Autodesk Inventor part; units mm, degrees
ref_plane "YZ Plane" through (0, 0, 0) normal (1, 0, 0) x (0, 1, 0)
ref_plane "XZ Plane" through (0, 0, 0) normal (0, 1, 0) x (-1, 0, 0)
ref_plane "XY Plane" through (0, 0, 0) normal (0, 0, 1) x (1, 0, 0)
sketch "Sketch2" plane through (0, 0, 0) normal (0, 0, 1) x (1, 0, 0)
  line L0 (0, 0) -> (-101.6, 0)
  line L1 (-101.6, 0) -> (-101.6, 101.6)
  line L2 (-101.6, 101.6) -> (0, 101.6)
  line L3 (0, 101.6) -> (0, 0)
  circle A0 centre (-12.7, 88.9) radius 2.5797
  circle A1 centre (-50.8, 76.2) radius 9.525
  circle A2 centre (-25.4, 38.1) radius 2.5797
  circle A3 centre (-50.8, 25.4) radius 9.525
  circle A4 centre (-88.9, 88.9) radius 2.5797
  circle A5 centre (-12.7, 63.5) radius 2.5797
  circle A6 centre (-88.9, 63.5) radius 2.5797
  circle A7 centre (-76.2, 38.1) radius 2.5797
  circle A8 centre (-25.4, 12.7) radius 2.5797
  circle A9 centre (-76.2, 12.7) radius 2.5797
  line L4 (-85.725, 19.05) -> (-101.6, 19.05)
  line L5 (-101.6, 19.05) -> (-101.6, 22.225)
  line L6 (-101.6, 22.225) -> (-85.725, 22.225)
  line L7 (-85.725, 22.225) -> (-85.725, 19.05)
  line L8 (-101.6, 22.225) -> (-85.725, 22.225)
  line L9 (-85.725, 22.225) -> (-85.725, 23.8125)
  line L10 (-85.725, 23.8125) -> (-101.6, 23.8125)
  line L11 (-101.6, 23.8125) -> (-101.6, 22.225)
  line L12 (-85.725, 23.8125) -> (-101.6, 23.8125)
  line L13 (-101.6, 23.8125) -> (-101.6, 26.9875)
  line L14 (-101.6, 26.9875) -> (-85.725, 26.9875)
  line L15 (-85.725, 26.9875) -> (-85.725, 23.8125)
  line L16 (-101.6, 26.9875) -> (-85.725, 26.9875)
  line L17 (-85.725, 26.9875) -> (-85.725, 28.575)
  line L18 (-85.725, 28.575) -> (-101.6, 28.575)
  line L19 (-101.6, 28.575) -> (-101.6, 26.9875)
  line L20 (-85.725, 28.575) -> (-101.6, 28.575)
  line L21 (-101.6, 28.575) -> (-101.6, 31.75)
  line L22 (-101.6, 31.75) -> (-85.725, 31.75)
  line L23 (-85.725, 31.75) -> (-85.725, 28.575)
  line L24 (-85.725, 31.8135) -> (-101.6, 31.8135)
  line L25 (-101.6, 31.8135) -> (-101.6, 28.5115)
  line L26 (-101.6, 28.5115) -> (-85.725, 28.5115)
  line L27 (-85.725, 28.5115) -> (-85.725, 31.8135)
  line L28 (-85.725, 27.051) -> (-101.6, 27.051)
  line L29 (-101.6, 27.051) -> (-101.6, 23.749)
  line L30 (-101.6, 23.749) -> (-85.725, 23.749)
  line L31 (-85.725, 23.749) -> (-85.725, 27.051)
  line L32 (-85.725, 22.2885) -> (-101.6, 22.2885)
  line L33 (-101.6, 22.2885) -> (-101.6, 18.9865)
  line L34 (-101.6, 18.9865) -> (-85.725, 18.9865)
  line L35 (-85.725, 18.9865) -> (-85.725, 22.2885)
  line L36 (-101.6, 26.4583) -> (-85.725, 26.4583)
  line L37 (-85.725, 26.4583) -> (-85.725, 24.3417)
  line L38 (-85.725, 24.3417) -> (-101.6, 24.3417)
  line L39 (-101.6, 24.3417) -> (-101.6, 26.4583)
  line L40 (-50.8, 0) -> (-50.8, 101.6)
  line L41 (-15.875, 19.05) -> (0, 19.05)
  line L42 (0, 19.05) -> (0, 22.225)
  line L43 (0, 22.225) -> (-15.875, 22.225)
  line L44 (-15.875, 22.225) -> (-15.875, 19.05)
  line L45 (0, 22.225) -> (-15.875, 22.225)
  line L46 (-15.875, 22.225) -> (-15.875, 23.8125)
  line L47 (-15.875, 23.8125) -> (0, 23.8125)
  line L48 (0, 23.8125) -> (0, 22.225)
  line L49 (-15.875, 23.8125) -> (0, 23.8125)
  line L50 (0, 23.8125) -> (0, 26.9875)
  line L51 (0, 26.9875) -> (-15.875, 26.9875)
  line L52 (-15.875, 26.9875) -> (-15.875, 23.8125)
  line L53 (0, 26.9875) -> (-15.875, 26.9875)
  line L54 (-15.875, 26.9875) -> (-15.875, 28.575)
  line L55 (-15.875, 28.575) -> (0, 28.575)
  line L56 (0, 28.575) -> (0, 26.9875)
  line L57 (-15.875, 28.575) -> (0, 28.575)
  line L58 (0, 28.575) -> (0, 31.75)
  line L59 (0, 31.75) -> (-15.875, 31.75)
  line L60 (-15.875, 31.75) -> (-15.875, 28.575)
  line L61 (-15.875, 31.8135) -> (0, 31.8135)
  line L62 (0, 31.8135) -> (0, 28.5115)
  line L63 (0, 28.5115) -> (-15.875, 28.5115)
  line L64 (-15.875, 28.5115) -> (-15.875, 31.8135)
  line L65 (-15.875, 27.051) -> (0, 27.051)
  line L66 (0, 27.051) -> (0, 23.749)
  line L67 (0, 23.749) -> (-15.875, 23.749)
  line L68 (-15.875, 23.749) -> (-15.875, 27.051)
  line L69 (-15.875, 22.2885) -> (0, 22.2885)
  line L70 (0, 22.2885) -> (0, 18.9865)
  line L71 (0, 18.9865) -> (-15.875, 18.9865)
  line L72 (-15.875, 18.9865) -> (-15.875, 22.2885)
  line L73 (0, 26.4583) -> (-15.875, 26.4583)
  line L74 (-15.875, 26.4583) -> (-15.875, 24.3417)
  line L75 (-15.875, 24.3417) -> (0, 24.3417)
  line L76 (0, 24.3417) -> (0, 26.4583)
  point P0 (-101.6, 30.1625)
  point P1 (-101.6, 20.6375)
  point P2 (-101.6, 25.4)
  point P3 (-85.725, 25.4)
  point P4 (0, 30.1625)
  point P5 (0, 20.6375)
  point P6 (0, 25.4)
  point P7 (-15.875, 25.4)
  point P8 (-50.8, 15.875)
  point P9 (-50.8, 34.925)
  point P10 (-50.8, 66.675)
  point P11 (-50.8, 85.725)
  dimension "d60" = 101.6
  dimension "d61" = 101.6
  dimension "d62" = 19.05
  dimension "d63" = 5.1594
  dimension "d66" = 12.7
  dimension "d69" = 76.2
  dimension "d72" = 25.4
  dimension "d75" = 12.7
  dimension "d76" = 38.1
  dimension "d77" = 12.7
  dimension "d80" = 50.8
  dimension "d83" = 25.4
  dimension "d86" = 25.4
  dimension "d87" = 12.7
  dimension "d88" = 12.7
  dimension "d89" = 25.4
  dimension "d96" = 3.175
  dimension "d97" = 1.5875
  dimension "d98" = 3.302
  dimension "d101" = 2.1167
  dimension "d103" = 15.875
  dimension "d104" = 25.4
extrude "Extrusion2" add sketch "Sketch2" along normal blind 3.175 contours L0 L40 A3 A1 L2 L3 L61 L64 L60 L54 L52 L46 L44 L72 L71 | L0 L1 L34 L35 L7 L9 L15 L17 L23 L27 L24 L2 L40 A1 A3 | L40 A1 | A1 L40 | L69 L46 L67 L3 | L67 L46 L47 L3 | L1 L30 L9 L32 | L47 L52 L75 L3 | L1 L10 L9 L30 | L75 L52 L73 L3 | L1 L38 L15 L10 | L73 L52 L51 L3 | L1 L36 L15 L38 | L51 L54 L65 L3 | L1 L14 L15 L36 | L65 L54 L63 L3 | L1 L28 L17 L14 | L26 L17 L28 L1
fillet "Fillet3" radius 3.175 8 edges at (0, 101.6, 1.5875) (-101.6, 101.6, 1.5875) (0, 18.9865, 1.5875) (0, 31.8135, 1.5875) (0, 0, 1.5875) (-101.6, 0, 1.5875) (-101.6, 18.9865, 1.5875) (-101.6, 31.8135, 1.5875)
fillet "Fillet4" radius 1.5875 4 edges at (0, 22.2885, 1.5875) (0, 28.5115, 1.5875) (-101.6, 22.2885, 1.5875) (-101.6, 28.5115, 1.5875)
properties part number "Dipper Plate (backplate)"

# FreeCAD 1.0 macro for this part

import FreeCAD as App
import Part
import Sketcher
Q = App.Units.Quantity


def edges_at(feature, points):
    """Names of the edges that pass closest to the given points."""
    edges = feature.Shape.Edges
    near = lambda p: min(range(len(edges)), key=lambda i: edges[i].distToShape(Part.Vertex(*p))[0])
    return sorted({f"Edge{near(p) + 1}" for p in points})

doc = App.newDocument("Part")
body = doc.addObject("PartDesign::Body", "Body")

sketch1 = body.newObject("Sketcher::SketchObject", "Sketch")
sketch1.AttachmentSupport = (doc.getObject("XY_Plane"), [""])
sketch1.MapMode = "FlatFace"
sketch1.addGeometry(Part.LineSegment(App.Vector(0, 0, 0), App.Vector(0, 19, 0)), False)
sketch1.addGeometry(Part.LineSegment(App.Vector(0, 19, 0), App.Vector(-15.9, 19, 0)), False)
sketch1.addGeometry(Part.LineSegment(App.Vector(-15.9, 19, 0), App.Vector(-15.9, 22.3, 0)), False)
sketch1.addGeometry(Part.LineSegment(App.Vector(-15.9, 22.3, 0), App.Vector(0, 22.3, 0)), False)
sketch1.addGeometry(Part.LineSegment(App.Vector(0, 22.3, 0), App.Vector(0, 28.5, 0)), False)
sketch1.addGeometry(Part.LineSegment(App.Vector(0, 28.5, 0), App.Vector(-15.9, 28.5, 0)), False)
sketch1.addGeometry(Part.LineSegment(App.Vector(-15.9, 28.5, 0), App.Vector(-15.9, 31.8, 0)), False)
sketch1.addGeometry(Part.LineSegment(App.Vector(-15.9, 31.8, 0), App.Vector(0, 31.8, 0)), False)
sketch1.addGeometry(Part.LineSegment(App.Vector(0, 31.8, 0), App.Vector(0, 101.6, 0)), False)
sketch1.addGeometry(Part.LineSegment(App.Vector(0, 101.6, 0), App.Vector(-101.6, 101.6, 0)), False)
sketch1.addGeometry(Part.LineSegment(App.Vector(-101.6, 101.6, 0), App.Vector(-101.6, 31.8, 0)), False)
sketch1.addGeometry(Part.LineSegment(App.Vector(-101.6, 31.8, 0), App.Vector(-85.7, 31.8, 0)), False)
sketch1.addGeometry(Part.LineSegment(App.Vector(-85.7, 31.8, 0), App.Vector(-85.7, 28.5, 0)), False)
sketch1.addGeometry(Part.LineSegment(App.Vector(-85.7, 28.5, 0), App.Vector(-101.6, 28.5, 0)), False)
sketch1.addGeometry(Part.LineSegment(App.Vector(-101.6, 28.5, 0), App.Vector(-101.6, 22.3, 0)), False)
sketch1.addGeometry(Part.LineSegment(App.Vector(-101.6, 22.3, 0), App.Vector(-85.7, 22.3, 0)), False)
sketch1.addGeometry(Part.LineSegment(App.Vector(-85.7, 22.3, 0), App.Vector(-85.7, 19, 0)), False)
sketch1.addGeometry(Part.LineSegment(App.Vector(-85.7, 19, 0), App.Vector(-101.6, 19, 0)), False)
sketch1.addGeometry(Part.LineSegment(App.Vector(-101.6, 19, 0), App.Vector(-101.6, 0, 0)), False)
sketch1.addGeometry(Part.LineSegment(App.Vector(-101.6, 0, 0), App.Vector(0, 0, 0)), False)
sketch1.addGeometry(Part.Circle(App.Vector(-50.8, 25.4, 0), App.Vector(0, 0, 1), 9.5), False)
sketch1.addGeometry(Part.Circle(App.Vector(-25.4, 12.7, 0), App.Vector(0, 0, 1), 2.6), False)
sketch1.addGeometry(Part.Circle(App.Vector(-25.4, 38.1, 0), App.Vector(0, 0, 1), 2.6), False)
sketch1.addGeometry(Part.Circle(App.Vector(-12.7, 63.5, 0), App.Vector(0, 0, 1), 2.6), False)
sketch1.addGeometry(Part.Circle(App.Vector(-12.7, 88.9, 0), App.Vector(0, 0, 1), 2.6), False)
sketch1.addGeometry(Part.Circle(App.Vector(-76.2, 38.1, 0), App.Vector(0, 0, 1), 2.6), False)
sketch1.addGeometry(Part.Circle(App.Vector(-88.9, 63.5, 0), App.Vector(0, 0, 1), 2.6), False)
sketch1.addGeometry(Part.Circle(App.Vector(-88.9, 88.9, 0), App.Vector(0, 0, 1), 2.6), False)
sketch1.addGeometry(Part.Circle(App.Vector(-76.2, 12.7, 0), App.Vector(0, 0, 1), 2.6), False)
sketch1.addConstraint(Sketcher.Constraint("Coincident", 0, 2, 1, 1))
sketch1.addConstraint(Sketcher.Constraint("Coincident", 1, 2, 2, 1))
sketch1.addConstraint(Sketcher.Constraint("Coincident", 2, 2, 3, 1))
sketch1.addConstraint(Sketcher.Constraint("Coincident", 3, 2, 4, 1))
sketch1.addConstraint(Sketcher.Constraint("Coincident", 4, 2, 5, 1))
sketch1.addConstraint(Sketcher.Constraint("Coincident", 5, 2, 6, 1))
sketch1.addConstraint(Sketcher.Constraint("Coincident", 6, 2, 7, 1))
sketch1.addConstraint(Sketcher.Constraint("Coincident", 7, 2, 8, 1))
sketch1.addConstraint(Sketcher.Constraint("Coincident", 8, 2, 9, 1))
sketch1.addConstraint(Sketcher.Constraint("Coincident", 9, 2, 10, 1))
sketch1.addConstraint(Sketcher.Constraint("Coincident", 10, 2, 11, 1))
sketch1.addConstraint(Sketcher.Constraint("Coincident", 11, 2, 12, 1))
sketch1.addConstraint(Sketcher.Constraint("Coincident", 12, 2, 13, 1))
sketch1.addConstraint(Sketcher.Constraint("Coincident", 13, 2, 14, 1))
sketch1.addConstraint(Sketcher.Constraint("Coincident", 14, 2, 15, 1))
sketch1.addConstraint(Sketcher.Constraint("Coincident", 15, 2, 16, 1))
sketch1.addConstraint(Sketcher.Constraint("Coincident", 16, 2, 17, 1))
sketch1.addConstraint(Sketcher.Constraint("Coincident", 17, 2, 18, 1))
sketch1.addConstraint(Sketcher.Constraint("Coincident", 18, 2, 19, 1))
sketch1.addConstraint(Sketcher.Constraint("Coincident", 19, 2, 0, 1))
sketch1.addConstraint(Sketcher.Constraint("Vertical", 0))
sketch1.addConstraint(Sketcher.Constraint("Horizontal", 1))
sketch1.addConstraint(Sketcher.Constraint("Vertical", 2))
sketch1.addConstraint(Sketcher.Constraint("Horizontal", 3))
sketch1.addConstraint(Sketcher.Constraint("Vertical", 4))
sketch1.addConstraint(Sketcher.Constraint("Horizontal", 5))
sketch1.addConstraint(Sketcher.Constraint("Vertical", 6))
sketch1.addConstraint(Sketcher.Constraint("Horizontal", 7))
sketch1.addConstraint(Sketcher.Constraint("Vertical", 8))
sketch1.addConstraint(Sketcher.Constraint("Horizontal", 9))
sketch1.addConstraint(Sketcher.Constraint("Vertical", 10))
sketch1.addConstraint(Sketcher.Constraint("Horizontal", 11))
sketch1.addConstraint(Sketcher.Constraint("Vertical", 12))
sketch1.addConstraint(Sketcher.Constraint("Horizontal", 13))
sketch1.addConstraint(Sketcher.Constraint("Vertical", 14))
sketch1.addConstraint(Sketcher.Constraint("Horizontal", 15))
sketch1.addConstraint(Sketcher.Constraint("Vertical", 16))
sketch1.addConstraint(Sketcher.Constraint("Horizontal", 17))
sketch1.addConstraint(Sketcher.Constraint("Vertical", 18))
sketch1.addConstraint(Sketcher.Constraint("Horizontal", 19))
sketch1.addConstraint(Sketcher.Constraint("Coincident", 19, 2, -1, 1))
sketch1.addConstraint(Sketcher.Constraint("Equal", 21, 22))
sketch1.addConstraint(Sketcher.Constraint("Equal", 22, 23))
sketch1.addConstraint(Sketcher.Constraint("Equal", 23, 24))
sketch1.addConstraint(Sketcher.Constraint("Equal", 24, 25))
sketch1.addConstraint(Sketcher.Constraint("Equal", 25, 26))
sketch1.addConstraint(Sketcher.Constraint("Equal", 26, 27))
sketch1.addConstraint(Sketcher.Constraint("Equal", 27, 28))
sketch1.addConstraint(Sketcher.Constraint("PointOnObject", 3, 2, -2))
sketch1.addConstraint(Sketcher.Constraint("PointOnObject", 7, 2, -2))
sketch1.addConstraint(Sketcher.Constraint("Horizontal", 22, 3, 25, 3))
sketch1.addConstraint(Sketcher.Constraint("Horizontal", 23, 3, 26, 3))
sketch1.addConstraint(Sketcher.Constraint("Horizontal", 24, 3, 27, 3))
sketch1.addConstraint(Sketcher.Constraint("Horizontal", 21, 3, 28, 3))
sketch1.addConstraint(Sketcher.Constraint("Horizontal", 7, 2, 10, 2))
sketch1.addConstraint(Sketcher.Constraint("Horizontal", 5, 2, 12, 2))
sketch1.addConstraint(Sketcher.Constraint("Horizontal", 3, 2, 14, 2))
sketch1.addConstraint(Sketcher.Constraint("Horizontal", 1, 2, 16, 2))
sketch1.addConstraint(Sketcher.Constraint("Vertical", 21, 3, 22, 3))
sketch1.addConstraint(Sketcher.Constraint("Vertical", 23, 3, 24, 3))
sketch1.addConstraint(Sketcher.Constraint("Vertical", 26, 3, 27, 3))
sketch1.addConstraint(Sketcher.Constraint("Vertical", 25, 3, 28, 3))
sketch1.addConstraint(Sketcher.Constraint("Vertical", 2, 2, 5, 2))
sketch1.addConstraint(Sketcher.Constraint("Vertical", 10, 2, 13, 2))
sketch1.addConstraint(Sketcher.Constraint("Vertical", 12, 2, 15, 2))
sketch1.addConstraint(Sketcher.Constraint("Vertical", 14, 2, 17, 2))
sketch1.addConstraint(Sketcher.Constraint("Equal", 7, 11))
sketch1.addConstraint(Sketcher.Constraint("Equal", 2, 6))
sketch1.addConstraint(Sketcher.Constraint("Diameter", 20, Q("0.75 in")))
sketch1.addConstraint(Sketcher.Constraint("DistanceX", 9, 2, 9, 1, Q("4 in")))
sketch1.addConstraint(Sketcher.Constraint("Diameter", 21, Q("0.203126 in")))
sketch1.addConstraint(Sketcher.Constraint("DistanceX", 20, 3, -1, 1, Q("2 in")))
sketch1.addConstraint(Sketcher.Constraint("DistanceY", -1, 1, 20, 3, Q("1 in")))
sketch1.addConstraint(Sketcher.Constraint("DistanceX", 21, 3, -1, 1, Q("1 in")))
sketch1.addConstraint(Sketcher.Constraint("DistanceX", 25, 3, -1, 1, Q("3 in")))
sketch1.addConstraint(Sketcher.Constraint("DistanceY", -1, 1, 8, 2, Q("4 in")))
sketch1.addConstraint(Sketcher.Constraint("DistanceY", 21, 3, 22, 3, Q("1 in")))
sketch1.addConstraint(Sketcher.Constraint("DistanceY", 22, 3, 23, 3, Q("1 in")))
sketch1.addConstraint(Sketcher.Constraint("DistanceY", 23, 3, 24, 3, Q("1 in")))
sketch1.addConstraint(Sketcher.Constraint("DistanceX", 26, 3, 23, 3, Q("3 in")))
sketch1.addConstraint(Sketcher.Constraint("DistanceY", 2, 1, 2, 2, Q("0.13 in")))
sketch1.addConstraint(Sketcher.Constraint("DistanceY", -1, 1, 21, 3, Q("0.5 in")))
sketch1.addConstraint(Sketcher.Constraint("DistanceX", 23, 3, -1, 1, Q("0.5 in")))
sketch1.addConstraint(Sketcher.Constraint("DistanceX", 1, 2, 1, 1, Q("0.625 in")))
sketch1.addConstraint(Sketcher.Constraint("DistanceY", 4, 1, 4, 2, Q("0.245 in")))
sketch1.addConstraint(Sketcher.Constraint("DistanceY", 0, 1, 0, 2, Q("0.7475 in")))
pad1 = body.newObject("PartDesign::Pad", "Pad")
pad1.Profile = sketch1
pad1.Length = Q("0.125 in")
doc.recompute()

fillet = body.newObject("PartDesign::Fillet", "Fillet")
fillet.Base = (pad1, edges_at(pad1, [
    (0, 101.6, 1.587),
    (-101.6, 101.6, 1.587),
    (0, 18.986, 1.587),
    (0, 31.814, 1.587),
    (0, 0, 1.587),
    (-101.6, 0, 1.587),
    (-101.6, 18.986, 1.587),
    (-101.6, 31.814, 1.587),
]))
fillet.Radius = Q("0.125 in")
doc.recompute()

fillet2 = body.newObject("PartDesign::Fillet", "Fillet001")
fillet2.Base = (fillet, edges_at(fillet, [
    (0, 22.288, 1.587),
    (0, 28.512, 1.587),
    (-101.6, 22.288, 1.587),
    (-101.6, 28.512, 1.587),
]))
fillet2.Radius = Q("0.0625 in")

doc.recompute()
